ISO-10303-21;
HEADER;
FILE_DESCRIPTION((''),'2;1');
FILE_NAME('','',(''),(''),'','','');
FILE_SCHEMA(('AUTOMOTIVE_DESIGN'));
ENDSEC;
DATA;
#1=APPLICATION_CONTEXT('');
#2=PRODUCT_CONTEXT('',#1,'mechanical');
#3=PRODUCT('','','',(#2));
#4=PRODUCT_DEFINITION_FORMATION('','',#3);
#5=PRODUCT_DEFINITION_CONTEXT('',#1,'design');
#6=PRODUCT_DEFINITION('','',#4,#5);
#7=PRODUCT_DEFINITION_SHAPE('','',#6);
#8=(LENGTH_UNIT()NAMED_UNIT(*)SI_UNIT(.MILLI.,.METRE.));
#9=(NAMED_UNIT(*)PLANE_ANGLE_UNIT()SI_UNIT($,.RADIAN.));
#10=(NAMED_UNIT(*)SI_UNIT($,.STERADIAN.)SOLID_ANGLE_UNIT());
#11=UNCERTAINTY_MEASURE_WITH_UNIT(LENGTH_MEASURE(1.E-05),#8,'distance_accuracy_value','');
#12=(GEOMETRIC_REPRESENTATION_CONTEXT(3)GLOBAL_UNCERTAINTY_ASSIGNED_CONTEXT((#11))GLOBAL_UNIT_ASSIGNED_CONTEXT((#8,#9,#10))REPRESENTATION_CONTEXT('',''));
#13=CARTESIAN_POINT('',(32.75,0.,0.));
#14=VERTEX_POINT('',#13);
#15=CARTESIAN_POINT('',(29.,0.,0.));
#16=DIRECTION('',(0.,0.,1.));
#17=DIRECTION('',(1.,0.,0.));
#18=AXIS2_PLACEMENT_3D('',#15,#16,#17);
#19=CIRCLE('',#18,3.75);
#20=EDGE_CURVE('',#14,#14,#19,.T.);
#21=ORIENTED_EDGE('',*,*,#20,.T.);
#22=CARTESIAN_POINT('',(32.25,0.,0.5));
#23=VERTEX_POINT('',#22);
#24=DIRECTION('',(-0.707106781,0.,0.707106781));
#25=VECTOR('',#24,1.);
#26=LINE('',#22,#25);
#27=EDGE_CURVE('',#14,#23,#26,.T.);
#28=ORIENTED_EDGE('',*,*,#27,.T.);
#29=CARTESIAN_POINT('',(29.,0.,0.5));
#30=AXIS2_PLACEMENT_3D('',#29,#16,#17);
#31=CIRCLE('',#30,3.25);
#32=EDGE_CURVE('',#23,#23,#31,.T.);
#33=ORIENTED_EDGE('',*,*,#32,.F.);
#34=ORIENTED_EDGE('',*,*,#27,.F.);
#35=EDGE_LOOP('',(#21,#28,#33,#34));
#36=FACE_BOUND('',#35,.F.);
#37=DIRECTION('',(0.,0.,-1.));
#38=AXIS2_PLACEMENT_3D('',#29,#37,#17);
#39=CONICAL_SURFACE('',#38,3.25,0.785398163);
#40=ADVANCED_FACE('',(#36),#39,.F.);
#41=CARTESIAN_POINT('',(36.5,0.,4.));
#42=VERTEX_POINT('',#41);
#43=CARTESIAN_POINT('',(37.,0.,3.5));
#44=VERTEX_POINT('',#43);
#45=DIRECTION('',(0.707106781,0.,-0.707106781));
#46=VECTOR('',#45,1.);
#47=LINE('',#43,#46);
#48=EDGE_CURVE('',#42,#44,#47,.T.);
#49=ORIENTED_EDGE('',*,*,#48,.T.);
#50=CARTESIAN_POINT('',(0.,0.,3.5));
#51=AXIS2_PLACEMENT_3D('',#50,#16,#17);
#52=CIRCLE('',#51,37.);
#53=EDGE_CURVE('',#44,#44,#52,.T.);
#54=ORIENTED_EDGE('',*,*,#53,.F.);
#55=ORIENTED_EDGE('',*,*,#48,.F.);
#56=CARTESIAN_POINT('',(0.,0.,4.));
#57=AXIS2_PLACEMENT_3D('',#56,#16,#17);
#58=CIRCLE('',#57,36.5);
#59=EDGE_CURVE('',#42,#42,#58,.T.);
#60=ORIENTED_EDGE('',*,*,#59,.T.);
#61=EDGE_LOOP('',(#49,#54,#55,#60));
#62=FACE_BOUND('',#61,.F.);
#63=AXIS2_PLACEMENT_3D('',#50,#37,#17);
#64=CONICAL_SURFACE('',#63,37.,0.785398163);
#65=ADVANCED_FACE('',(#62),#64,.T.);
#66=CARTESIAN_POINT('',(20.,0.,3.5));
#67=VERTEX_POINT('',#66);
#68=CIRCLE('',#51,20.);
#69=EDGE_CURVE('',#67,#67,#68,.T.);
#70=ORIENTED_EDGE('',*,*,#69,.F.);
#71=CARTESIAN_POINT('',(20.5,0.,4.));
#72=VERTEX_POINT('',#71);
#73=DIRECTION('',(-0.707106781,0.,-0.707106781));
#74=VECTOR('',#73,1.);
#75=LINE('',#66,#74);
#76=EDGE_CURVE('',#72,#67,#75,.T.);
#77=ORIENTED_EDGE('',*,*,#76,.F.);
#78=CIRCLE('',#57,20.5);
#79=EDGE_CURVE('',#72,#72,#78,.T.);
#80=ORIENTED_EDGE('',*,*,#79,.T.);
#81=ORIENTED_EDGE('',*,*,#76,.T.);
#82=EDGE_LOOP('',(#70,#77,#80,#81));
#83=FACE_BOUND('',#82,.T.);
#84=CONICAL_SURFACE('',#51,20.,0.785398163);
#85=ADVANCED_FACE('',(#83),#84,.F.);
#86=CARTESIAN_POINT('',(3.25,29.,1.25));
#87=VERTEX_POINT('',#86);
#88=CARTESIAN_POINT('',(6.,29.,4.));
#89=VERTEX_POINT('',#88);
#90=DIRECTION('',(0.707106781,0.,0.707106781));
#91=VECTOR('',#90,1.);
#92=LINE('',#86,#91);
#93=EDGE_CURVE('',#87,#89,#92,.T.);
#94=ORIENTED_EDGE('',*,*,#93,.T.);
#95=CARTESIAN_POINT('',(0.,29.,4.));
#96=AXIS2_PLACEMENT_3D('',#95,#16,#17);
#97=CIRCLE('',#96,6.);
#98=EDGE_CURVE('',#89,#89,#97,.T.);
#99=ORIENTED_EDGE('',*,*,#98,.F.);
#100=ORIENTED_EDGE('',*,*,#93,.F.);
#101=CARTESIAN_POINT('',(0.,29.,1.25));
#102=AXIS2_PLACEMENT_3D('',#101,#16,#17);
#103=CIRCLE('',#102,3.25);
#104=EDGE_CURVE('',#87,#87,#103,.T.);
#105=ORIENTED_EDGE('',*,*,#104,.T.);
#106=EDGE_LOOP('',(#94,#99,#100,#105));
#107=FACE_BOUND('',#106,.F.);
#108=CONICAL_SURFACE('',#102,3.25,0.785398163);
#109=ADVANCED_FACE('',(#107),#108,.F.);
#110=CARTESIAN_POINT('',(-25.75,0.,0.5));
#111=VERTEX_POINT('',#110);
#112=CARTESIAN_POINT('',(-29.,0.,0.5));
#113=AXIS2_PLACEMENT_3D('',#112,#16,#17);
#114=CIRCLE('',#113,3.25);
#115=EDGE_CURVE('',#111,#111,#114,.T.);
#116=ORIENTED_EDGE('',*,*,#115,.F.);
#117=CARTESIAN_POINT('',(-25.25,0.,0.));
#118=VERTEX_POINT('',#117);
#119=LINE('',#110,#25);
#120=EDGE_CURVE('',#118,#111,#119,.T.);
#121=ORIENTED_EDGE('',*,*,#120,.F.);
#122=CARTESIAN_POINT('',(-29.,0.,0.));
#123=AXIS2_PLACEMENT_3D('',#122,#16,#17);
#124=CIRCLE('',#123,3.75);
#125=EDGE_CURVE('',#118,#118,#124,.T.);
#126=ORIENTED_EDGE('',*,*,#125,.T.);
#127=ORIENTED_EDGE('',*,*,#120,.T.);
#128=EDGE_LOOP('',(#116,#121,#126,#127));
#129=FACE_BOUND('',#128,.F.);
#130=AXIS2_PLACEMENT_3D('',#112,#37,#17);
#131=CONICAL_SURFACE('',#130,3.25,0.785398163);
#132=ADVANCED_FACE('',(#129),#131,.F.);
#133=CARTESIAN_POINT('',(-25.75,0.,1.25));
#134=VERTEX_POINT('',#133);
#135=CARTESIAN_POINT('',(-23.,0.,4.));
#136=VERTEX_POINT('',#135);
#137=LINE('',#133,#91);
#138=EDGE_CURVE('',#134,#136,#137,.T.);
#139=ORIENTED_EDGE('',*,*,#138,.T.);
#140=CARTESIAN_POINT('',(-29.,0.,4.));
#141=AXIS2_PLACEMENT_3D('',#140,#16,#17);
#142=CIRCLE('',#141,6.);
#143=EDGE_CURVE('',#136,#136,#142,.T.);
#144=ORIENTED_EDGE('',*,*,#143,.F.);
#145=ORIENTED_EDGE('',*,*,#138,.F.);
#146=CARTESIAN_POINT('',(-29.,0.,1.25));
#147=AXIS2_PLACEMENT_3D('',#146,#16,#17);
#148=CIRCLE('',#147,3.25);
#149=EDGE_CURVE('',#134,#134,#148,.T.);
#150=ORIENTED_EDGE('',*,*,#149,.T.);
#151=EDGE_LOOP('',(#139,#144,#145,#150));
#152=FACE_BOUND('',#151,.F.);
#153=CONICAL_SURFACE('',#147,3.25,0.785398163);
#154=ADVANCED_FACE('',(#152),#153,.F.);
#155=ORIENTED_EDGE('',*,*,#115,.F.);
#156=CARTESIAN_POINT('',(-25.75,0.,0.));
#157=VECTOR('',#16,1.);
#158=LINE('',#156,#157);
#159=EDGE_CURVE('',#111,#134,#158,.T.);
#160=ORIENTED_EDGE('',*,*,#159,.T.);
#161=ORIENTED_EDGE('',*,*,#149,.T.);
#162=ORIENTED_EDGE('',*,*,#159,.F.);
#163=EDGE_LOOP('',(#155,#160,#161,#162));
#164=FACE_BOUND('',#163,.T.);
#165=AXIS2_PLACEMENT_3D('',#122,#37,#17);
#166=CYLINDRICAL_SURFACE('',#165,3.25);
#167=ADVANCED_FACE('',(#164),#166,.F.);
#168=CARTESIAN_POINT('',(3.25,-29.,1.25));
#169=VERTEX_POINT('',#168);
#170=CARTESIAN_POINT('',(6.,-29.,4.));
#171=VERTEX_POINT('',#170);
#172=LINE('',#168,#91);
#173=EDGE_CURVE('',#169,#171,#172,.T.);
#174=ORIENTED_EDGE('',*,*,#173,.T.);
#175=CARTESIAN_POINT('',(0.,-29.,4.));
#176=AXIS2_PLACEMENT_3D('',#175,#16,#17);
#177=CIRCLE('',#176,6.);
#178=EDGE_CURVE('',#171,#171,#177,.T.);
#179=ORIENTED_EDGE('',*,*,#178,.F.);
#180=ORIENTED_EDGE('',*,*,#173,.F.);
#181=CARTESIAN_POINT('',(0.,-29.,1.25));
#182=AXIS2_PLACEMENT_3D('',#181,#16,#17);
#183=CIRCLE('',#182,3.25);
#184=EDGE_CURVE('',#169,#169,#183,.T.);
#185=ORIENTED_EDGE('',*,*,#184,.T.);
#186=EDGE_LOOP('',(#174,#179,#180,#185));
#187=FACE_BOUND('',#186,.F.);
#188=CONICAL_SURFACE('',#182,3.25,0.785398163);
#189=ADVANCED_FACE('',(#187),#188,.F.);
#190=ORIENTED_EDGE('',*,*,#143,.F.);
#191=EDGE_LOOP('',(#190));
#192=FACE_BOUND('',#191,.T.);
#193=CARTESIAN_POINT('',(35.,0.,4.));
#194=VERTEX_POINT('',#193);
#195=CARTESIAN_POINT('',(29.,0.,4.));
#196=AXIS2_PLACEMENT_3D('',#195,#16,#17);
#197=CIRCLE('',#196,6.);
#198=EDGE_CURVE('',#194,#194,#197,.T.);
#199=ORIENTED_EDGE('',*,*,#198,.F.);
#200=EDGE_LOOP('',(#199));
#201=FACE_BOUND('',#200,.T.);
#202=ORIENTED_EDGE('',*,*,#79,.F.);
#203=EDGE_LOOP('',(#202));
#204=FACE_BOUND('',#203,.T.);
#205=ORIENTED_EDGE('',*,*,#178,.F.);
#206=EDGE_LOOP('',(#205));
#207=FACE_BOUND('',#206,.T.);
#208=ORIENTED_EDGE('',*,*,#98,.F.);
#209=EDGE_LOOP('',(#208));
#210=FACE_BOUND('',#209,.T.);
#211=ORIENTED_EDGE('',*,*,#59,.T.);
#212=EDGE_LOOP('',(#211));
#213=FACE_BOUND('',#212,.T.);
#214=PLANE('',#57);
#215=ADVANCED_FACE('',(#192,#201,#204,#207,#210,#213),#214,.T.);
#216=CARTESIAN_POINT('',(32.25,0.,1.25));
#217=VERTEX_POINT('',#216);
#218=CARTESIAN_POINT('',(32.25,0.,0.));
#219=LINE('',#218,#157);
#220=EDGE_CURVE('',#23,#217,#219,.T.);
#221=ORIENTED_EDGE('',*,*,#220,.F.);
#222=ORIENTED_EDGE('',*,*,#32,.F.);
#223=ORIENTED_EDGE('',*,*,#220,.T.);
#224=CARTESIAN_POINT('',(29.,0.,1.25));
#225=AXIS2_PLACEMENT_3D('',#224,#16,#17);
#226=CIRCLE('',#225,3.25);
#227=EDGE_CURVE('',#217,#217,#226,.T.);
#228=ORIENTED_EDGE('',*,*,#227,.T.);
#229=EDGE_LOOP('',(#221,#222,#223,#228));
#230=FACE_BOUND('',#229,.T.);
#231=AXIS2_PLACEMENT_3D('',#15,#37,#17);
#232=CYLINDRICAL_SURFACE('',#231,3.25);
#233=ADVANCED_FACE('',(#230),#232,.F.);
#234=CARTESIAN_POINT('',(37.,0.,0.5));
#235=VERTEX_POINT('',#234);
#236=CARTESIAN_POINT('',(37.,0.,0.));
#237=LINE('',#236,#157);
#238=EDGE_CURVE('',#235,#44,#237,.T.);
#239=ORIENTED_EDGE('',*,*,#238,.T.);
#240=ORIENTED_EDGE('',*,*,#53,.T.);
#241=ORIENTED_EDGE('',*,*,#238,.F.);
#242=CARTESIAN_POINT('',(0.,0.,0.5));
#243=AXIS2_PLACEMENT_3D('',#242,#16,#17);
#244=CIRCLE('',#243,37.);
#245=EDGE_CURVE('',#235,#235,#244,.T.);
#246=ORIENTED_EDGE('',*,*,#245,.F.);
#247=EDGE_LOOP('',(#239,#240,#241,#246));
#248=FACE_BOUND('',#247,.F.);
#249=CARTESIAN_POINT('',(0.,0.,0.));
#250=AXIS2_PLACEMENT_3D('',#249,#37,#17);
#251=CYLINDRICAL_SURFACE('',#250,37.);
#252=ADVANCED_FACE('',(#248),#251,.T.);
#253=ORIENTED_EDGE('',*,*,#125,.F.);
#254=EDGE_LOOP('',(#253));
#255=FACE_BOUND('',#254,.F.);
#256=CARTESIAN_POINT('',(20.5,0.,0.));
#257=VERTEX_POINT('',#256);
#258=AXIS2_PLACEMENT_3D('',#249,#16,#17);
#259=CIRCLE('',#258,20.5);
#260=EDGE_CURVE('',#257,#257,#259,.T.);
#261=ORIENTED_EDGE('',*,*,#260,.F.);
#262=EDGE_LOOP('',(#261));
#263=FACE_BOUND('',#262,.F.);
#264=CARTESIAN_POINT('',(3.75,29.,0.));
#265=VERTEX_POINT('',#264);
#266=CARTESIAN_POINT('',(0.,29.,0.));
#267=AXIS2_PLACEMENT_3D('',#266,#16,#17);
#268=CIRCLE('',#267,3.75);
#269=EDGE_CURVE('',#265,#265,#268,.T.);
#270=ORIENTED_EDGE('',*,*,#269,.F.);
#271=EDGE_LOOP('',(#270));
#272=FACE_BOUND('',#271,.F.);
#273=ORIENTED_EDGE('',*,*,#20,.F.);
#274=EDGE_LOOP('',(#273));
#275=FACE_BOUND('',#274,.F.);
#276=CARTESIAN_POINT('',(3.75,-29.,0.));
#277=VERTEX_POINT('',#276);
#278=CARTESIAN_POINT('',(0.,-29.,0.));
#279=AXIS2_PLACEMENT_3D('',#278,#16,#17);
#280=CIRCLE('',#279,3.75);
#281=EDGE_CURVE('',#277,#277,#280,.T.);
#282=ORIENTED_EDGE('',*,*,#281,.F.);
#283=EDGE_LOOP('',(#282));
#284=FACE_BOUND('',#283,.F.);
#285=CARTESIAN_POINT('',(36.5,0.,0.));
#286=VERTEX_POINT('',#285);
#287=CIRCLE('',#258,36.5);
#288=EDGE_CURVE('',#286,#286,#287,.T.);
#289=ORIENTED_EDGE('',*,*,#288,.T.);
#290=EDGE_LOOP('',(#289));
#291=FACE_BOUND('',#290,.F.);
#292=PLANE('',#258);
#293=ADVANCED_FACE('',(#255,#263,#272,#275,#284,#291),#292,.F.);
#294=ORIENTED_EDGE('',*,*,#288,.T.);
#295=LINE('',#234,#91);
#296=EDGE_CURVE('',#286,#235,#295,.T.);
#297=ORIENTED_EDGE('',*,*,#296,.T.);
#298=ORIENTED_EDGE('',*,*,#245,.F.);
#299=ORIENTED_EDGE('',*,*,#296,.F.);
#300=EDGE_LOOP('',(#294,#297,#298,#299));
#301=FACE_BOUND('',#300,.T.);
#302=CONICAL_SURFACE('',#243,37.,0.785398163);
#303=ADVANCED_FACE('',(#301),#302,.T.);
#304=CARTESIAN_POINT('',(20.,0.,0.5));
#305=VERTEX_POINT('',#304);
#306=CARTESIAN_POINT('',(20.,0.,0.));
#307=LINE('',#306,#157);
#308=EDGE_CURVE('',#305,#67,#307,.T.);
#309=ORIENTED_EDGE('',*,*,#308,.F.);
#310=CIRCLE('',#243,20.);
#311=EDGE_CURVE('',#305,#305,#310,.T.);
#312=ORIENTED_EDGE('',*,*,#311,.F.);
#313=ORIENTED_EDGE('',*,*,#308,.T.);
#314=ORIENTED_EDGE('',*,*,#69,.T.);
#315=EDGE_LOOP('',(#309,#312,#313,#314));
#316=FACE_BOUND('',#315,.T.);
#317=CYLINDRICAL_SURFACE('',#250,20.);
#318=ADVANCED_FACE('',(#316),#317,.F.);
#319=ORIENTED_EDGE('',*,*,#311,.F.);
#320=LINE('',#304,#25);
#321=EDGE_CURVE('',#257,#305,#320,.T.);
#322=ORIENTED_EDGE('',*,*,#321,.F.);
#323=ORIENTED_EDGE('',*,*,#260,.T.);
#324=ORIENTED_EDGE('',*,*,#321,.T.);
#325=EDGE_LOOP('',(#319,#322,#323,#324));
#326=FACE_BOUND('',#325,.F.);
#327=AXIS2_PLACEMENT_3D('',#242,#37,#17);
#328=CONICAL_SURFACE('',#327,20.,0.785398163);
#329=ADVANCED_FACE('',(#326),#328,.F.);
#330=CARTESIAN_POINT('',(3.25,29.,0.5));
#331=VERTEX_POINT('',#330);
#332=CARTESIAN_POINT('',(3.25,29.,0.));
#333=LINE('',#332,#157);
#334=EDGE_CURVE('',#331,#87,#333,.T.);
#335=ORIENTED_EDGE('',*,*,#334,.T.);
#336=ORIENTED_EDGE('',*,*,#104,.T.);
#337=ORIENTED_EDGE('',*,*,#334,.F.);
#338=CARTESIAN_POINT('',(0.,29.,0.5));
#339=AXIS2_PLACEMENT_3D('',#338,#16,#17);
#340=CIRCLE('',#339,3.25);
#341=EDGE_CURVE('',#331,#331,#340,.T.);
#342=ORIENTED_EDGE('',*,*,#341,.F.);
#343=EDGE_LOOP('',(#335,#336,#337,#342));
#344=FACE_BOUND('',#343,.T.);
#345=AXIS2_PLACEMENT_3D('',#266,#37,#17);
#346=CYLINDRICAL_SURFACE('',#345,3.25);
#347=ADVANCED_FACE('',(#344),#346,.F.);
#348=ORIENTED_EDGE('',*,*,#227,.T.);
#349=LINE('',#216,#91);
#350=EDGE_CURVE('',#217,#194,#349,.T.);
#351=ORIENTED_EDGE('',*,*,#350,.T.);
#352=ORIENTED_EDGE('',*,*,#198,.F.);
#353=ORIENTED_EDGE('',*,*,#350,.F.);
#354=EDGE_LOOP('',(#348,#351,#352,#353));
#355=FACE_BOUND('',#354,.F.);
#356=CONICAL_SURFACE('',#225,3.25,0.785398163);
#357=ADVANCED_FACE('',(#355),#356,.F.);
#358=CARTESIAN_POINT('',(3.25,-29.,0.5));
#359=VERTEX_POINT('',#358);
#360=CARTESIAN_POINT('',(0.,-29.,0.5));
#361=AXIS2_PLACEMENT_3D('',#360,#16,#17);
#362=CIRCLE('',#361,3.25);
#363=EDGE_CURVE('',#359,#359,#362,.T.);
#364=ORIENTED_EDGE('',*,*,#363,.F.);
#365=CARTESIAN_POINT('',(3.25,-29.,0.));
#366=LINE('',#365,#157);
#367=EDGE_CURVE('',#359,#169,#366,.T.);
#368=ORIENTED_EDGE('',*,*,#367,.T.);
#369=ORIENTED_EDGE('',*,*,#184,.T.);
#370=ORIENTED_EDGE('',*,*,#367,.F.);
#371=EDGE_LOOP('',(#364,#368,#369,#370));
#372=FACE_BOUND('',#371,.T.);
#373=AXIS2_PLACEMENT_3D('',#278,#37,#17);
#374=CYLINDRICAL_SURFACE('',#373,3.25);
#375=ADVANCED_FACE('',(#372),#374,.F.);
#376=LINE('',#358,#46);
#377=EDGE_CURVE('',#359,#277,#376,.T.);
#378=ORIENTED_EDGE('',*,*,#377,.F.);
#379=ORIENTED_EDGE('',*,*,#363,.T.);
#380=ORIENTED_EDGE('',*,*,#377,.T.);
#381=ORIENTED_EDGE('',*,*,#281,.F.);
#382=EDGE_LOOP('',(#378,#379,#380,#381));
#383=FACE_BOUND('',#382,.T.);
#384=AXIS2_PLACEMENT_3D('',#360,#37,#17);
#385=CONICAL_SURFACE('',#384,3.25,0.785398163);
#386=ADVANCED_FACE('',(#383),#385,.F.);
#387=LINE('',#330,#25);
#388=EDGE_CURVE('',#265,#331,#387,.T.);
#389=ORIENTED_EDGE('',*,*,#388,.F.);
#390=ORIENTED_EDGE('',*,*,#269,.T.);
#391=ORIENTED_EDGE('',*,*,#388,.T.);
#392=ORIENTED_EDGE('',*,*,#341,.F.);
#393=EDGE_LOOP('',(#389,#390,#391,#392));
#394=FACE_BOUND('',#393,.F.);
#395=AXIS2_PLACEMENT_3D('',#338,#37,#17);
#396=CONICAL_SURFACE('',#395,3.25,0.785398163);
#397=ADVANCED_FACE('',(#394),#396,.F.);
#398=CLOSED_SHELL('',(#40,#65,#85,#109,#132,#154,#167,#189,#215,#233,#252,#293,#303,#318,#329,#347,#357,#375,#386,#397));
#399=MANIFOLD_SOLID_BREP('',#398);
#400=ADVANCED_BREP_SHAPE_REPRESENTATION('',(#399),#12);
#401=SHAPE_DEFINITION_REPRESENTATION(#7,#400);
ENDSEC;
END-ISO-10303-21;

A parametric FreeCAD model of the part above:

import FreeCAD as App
import Part
import Sketcher
from FreeCAD import Vector


def edges_at(feature, points):
    """Names of the edges that pass closest to the given points."""
    edges = feature.Shape.Edges
    near = lambda p: min(range(len(edges)), key=lambda i: edges[i].distToShape(Part.Vertex(*p))[0])
    return sorted({f"Edge{near(p) + 1}" for p in points})

doc = App.newDocument("Part")
body = doc.addObject("PartDesign::Body", "Body")

# Sketch on XY plane
sketch1 = body.newObject("Sketcher::SketchObject", "Sketch")
sketch1.AttachmentSupport = (doc.getObject("XY_Plane"), [""])
sketch1.MapMode = "FlatFace"
sketch1.addGeometry([
    Part.Circle(Vector(0, 0, 0), Vector(0, 0, 1), 37),  # 0
    Part.Circle(Vector(0, -29, 0), Vector(0, 0, 1), 3.2),  # 1
    Part.Circle(Vector(-29, 0, 0), Vector(0, 0, 1), 3.2),  # 2
    Part.Circle(Vector(0, 0, 0), Vector(0, 0, 1), 20),  # 3
    Part.Circle(Vector(29, 0, 0), Vector(0, 0, 1), 3.2),  # 4
    Part.Circle(Vector(0, 29, 0), Vector(0, 0, 1), 3.2),  # 5
], False)
sketch1.addConstraint([
    Sketcher.Constraint("Coincident", 0, 3, -1, 1),
    Sketcher.Constraint("Coincident", 3, 3, -1, 1),
    Sketcher.Constraint("Equal", 1, 2),
    Sketcher.Constraint("Equal", 2, 4),
    Sketcher.Constraint("Equal", 4, 5),
    Sketcher.Constraint("Symmetric", 2, 3, 4, 3, -1, 1),
    Sketcher.Constraint("Symmetric", 1, 3, 5, 3, -1, 1),
    Sketcher.Constraint("PointOnObject", 1, 3, -2),
    Sketcher.Constraint("PointOnObject", 2, 3, -1),
    Sketcher.Constraint("Diameter", 0, 74.0),
    Sketcher.Constraint("Diameter", 3, 40.0),
    Sketcher.Constraint("Diameter", 1, 6.5),
    Sketcher.Constraint("DistanceY", 1, 3, -1, 1, 29.0),
    Sketcher.Constraint("DistanceX", 2, 3, -1, 1, 29.0),
])
pad1 = body.newObject("PartDesign::Pad", "Pad")
pad1.Profile = sketch1
pad1.Length = 4
doc.recompute()

chamfer = body.newObject("PartDesign::Chamfer", "Chamfer")
chamfer.Base = (pad1, edges_at(pad1, [
    (-3.25, -29, 4),
    (-32.25, 0, 4),
    (-3.25, 29, 4),
    (25.75, 0, 4),
]))
chamfer.Size = 2.75
doc.recompute()

chamfer2 = body.newObject("PartDesign::Chamfer", "Chamfer001")
chamfer2.Base = (chamfer, edges_at(chamfer, [
    (20, 0, 2),
    (-20, 0, 0),
    (-20, 0, 4),
    (37, 0, 2),
    (-37, 0, 0),
    (-37, 0, 4),
    (-3.25, -29, 0),
    (-32.25, 0, 0),
    (25.75, 0, 0),
    (-3.25, 29, 0),
]))
chamfer2.Size = 0.5

doc.recompute()
